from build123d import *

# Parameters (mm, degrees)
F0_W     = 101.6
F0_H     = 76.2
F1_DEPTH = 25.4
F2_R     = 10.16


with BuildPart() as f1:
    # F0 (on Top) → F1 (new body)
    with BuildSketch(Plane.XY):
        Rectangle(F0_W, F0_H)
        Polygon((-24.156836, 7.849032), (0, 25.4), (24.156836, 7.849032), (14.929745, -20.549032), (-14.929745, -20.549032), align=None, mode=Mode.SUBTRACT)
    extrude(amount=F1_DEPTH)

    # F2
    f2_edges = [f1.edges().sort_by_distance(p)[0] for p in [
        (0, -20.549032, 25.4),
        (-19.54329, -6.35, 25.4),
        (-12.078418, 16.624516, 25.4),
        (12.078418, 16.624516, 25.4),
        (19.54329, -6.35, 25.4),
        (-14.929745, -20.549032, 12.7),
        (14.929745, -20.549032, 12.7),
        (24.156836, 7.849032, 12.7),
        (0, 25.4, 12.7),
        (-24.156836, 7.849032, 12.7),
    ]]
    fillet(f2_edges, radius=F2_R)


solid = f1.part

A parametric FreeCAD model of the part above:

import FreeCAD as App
import Part
import Sketcher
Q = App.Units.Quantity


def edges_at(feature, points):
    """Names of the edges that pass closest to the given points."""
    edges = feature.Shape.Edges
    near = lambda p: min(range(len(edges)), key=lambda i: edges[i].distToShape(Part.Vertex(*p))[0])
    return sorted({f"Edge{near(p) + 1}" for p in points})

doc = App.newDocument("Part")
params = doc.addObject("Spreadsheet::Sheet", "Params")
for row, (alias, value) in enumerate([
    ("sketch1_width", "4 in"),
    ("sketch1_height", "3 in"),
    ("pad1_length", "1 in"),
    ("fillet_radius", "0.4 in"),
], start=1):
    params.set(f"A{row}", alias)
    params.set(f"B{row}", "=" + value)
    params.setAlias(f"B{row}", alias)

body = doc.addObject("PartDesign::Body", "Body")

# Sketch on XY plane
sketch1 = doc.addObject("Sketcher::SketchObject", "Sketch")
body.addObject(sketch1)
sketch1.AttachmentSupport = (doc.XY_Plane, [""])
sketch1.MapMode = "FlatFace"
sketch1.addGeometry(Part.LineSegment(App.Vector(-50.8, 38.1, 0), App.Vector(-50.8, -38.1, 0)), False)
sketch1.addGeometry(Part.LineSegment(App.Vector(-50.8, -38.1, 0), App.Vector(50.8, -38.1, 0)), False)
sketch1.addGeometry(Part.LineSegment(App.Vector(50.8, -38.1, 0), App.Vector(50.8, 38.1, 0)), False)
sketch1.addGeometry(Part.LineSegment(App.Vector(50.8, 38.1, 0), App.Vector(-50.8, 38.1, 0)), False)
sketch1.addGeometry(Part.LineSegment(App.Vector(-14.929745, -20.549032, 0), App.Vector(-24.156836, 7.849032, 0)), False)
sketch1.addGeometry(Part.LineSegment(App.Vector(-24.156836, 7.849032, 0), App.Vector(0, 25.4, 0)), False)
sketch1.addGeometry(Part.LineSegment(App.Vector(0, 25.4, 0), App.Vector(24.156836, 7.849032, 0)), False)
sketch1.addGeometry(Part.LineSegment(App.Vector(24.156836, 7.849032, 0), App.Vector(14.929745, -20.549032, 0)), False)
sketch1.addGeometry(Part.LineSegment(App.Vector(14.929745, -20.549032, 0), App.Vector(-14.929745, -20.549032, 0)), False)
sketch1.addConstraint(Sketcher.Constraint("Coincident", 0, 2, 1, 1))
sketch1.addConstraint(Sketcher.Constraint("Coincident", 1, 2, 2, 1))
sketch1.addConstraint(Sketcher.Constraint("Coincident", 2, 2, 3, 1))
sketch1.addConstraint(Sketcher.Constraint("Coincident", 3, 2, 0, 1))
sketch1.addConstraint(Sketcher.Constraint("Coincident", 4, 2, 5, 1))
sketch1.addConstraint(Sketcher.Constraint("Coincident", 5, 2, 6, 1))
sketch1.addConstraint(Sketcher.Constraint("Coincident", 6, 2, 7, 1))
sketch1.addConstraint(Sketcher.Constraint("Coincident", 7, 2, 8, 1))
sketch1.addConstraint(Sketcher.Constraint("Coincident", 8, 2, 4, 1))
sketch1.addConstraint(Sketcher.Constraint("Vertical", 0))
sketch1.addConstraint(Sketcher.Constraint("Horizontal", 1))
sketch1.addConstraint(Sketcher.Constraint("Vertical", 2))
sketch1.addConstraint(Sketcher.Constraint("Horizontal", 3))
sketch1.addConstraint(Sketcher.Constraint("Horizontal", 8))
sketch1.addConstraint(Sketcher.Constraint("Symmetric", 0, 2, 2, 2, -1, 1))
sketch1.addConstraint(Sketcher.Constraint("Symmetric", 4, 2, 6, 2, -2))
sketch1.addConstraint(Sketcher.Constraint("PointOnObject", 5, 2, -2))
sketch1.addConstraint(Sketcher.Constraint("Equal", 4, 5))
sketch1.addConstraint(Sketcher.Constraint("Equal", 6, 7))
sketch1.addConstraint(Sketcher.Constraint("DistanceX", 1, 1, 1, 2, Q("4 in")))
sketch1.addConstraint(Sketcher.Constraint("DistanceY", 0, 2, 0, 1, Q("3 in")))
sketch1.addConstraint(Sketcher.Constraint("DistanceY", -1, 1, 5, 2, Q("1 in")))
sketch1.addConstraint(Sketcher.Constraint("Angle", 4, Q("108.000001 deg")))
sketch1.addConstraint(Sketcher.Constraint("Angle", 5, Q("35.999999 deg")))
sketch1.addConstraint(Sketcher.Constraint("DistanceX", 8, 2, 8, 1, Q("29.85949 mm")))
sketch1.setExpression("Constraints[19]", "Params.sketch1_width")
sketch1.setExpression("Constraints[20]", "Params.sketch1_height")
pad1 = doc.addObject("PartDesign::Pad", "Pad")
body.addObject(pad1)
pad1.Profile = sketch1
pad1.setExpression("Length", "Params.pad1_length")
doc.recompute()

fillet = doc.addObject("PartDesign::Fillet", "Fillet")
body.addObject(fillet)
fillet.Base = (pad1, edges_at(pad1, [
    (0, -20.549, 25.4),
    (-19.543, -6.35, 25.4),
    (-12.078, 16.625, 25.4),
    (12.078, 16.625, 25.4),
    (19.543, -6.35, 25.4),
    (-14.93, -20.549, 12.7),
    (14.93, -20.549, 12.7),
    (24.157, 7.849, 12.7),
    (0, 25.4, 12.7),
    (-24.157, 7.849, 12.7),
]))
fillet.setExpression("Radius", "Params.fillet_radius")

doc.recompute()
